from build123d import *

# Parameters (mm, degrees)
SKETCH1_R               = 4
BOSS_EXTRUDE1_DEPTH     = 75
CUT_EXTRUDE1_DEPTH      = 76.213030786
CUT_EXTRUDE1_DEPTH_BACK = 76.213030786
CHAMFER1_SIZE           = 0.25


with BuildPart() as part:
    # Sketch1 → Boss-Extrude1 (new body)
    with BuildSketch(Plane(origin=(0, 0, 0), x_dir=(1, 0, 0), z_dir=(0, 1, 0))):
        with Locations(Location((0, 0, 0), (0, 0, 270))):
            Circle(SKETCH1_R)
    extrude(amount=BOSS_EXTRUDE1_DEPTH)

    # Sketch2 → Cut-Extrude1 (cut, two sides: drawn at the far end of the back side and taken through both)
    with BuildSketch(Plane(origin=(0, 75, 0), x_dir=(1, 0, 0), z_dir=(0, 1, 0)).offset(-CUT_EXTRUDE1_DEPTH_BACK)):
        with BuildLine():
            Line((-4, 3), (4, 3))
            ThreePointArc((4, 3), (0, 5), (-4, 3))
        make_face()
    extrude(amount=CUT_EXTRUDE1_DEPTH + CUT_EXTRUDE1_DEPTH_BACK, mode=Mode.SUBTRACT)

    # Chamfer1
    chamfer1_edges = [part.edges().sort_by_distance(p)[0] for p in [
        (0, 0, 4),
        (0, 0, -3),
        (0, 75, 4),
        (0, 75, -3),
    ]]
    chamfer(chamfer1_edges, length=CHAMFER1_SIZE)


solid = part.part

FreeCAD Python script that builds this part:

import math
import FreeCAD as App
import Part
import Sketcher

V = App.Vector


def edges_at(feature, points):
    """Names of the edges that pass closest to the given points."""
    edges = feature.Shape.Edges
    near = lambda p: min(range(len(edges)), key=lambda i: edges[i].distToShape(Part.Vertex(*p))[0])
    return sorted({f"Edge{near(p) + 1}" for p in points})

doc = App.newDocument("Part")
params = doc.addObject("Spreadsheet::Sheet", "Params")
for row, (alias, value) in enumerate([
    ("sketch1_diameter", "8 mm"),
    ("pad1_length", "75 mm"),
    ("sketch2_radius", "5 mm"),
    ("sketch2_width", "8 mm"),
    ("chamfer_size", "0.25 mm"),
], start=1):
    params.set(f"A{row}", alias)
    params.set(f"B{row}", "=" + value)
    params.setAlias(f"B{row}", alias)

body = doc.addObject("PartDesign::Body", "Body")

# Sketch on XZ plane
sketch1 = body.newObject("Sketcher::SketchObject", "Sketch")
sketch1.AttachmentSupport = (doc.getObject("XZ_Plane"), [""])
sketch1.MapMode = "FlatFace"
sketch1.addGeometry(Part.Circle(V(0, 0, 0), V(0, 0, 1), 4), False)
sketch1.addConstraint([
    Sketcher.Constraint("Coincident", 0, 3, -1, 1),
    Sketcher.Constraint("Diameter", 0, 8.0),
])
sketch1.setExpression("Constraints[1]", "Params.sketch1_diameter")
pad1 = body.newObject("PartDesign::Pad", "Pad")
pad1.Profile = sketch1
pad1.setExpression("Length", "Params.pad1_length")
pad1.Reversed = True

# Sketch on XZ plane
sketch2 = body.newObject("Sketcher::SketchObject", "Sketch001")
sketch2.AttachmentSupport = (doc.getObject("XZ_Plane"), [""])
sketch2.MapMode = "FlatFace"
sketch2.AttachmentOffset = App.Placement(V(0, 0, -75), App.Rotation())
sketch2.addGeometry([
    Part.LineSegment(V(-4, -3, 0), V(4, -3, 0)),
    Part.ArcOfCircle(Part.Circle(V(0, 0, 0), V(0, 0, 1), 5), math.radians(-143), math.radians(-37)),
], False)
sketch2.addConstraint([
    Sketcher.Constraint("Coincident", 0, 1, 1, 1),
    Sketcher.Constraint("Coincident", 1, 2, 0, 2),
    Sketcher.Constraint("Horizontal", 0),
    Sketcher.Constraint("Coincident", 1, 3, -1, 1),
    Sketcher.Constraint("Radius", 1, 5.0),
    Sketcher.Constraint("DistanceX", 0, 1, 0, 2, 8.0),
])
sketch2.setExpression("Constraints[4]", "Params.sketch2_radius")
sketch2.setExpression("Constraints[5]", "Params.sketch2_width")
pocket1 = body.newObject("PartDesign::Pocket", "Pocket")
pocket1.Profile = sketch2
pocket1.Type = "ThroughAll"
pocket1.Midplane = True
doc.recompute()

chamfer = body.newObject("PartDesign::Chamfer", "Chamfer")
chamfer.Base = (pocket1, edges_at(pocket1, [
    (0, 0, 4),
    (0, 0, -3),
    (0, 75, 4),
    (0, 75, -3),
]))
chamfer.setExpression("Size", "Params.chamfer_size")

doc.recompute()
